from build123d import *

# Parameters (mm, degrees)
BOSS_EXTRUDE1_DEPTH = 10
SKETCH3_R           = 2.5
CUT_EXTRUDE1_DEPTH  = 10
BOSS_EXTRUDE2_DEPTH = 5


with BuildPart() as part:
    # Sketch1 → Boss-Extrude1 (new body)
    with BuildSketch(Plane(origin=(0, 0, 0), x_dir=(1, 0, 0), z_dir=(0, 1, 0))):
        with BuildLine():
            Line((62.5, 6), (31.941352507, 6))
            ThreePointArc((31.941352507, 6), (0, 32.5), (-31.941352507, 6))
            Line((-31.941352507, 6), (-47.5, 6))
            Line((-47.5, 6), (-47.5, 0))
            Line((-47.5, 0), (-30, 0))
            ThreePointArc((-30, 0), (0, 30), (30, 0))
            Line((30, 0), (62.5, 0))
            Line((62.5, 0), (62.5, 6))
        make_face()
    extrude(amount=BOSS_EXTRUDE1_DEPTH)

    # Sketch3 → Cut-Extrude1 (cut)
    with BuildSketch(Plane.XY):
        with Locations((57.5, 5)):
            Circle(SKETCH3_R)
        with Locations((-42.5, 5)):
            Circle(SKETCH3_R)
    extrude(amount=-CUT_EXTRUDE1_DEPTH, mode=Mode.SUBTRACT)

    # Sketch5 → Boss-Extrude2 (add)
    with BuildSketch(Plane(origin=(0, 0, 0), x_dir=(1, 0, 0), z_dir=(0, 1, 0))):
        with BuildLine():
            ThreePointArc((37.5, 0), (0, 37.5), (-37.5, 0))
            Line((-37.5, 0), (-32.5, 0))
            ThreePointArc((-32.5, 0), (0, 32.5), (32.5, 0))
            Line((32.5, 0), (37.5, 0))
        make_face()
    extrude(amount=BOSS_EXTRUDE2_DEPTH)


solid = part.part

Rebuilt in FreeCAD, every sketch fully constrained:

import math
import FreeCAD as App
import Part
import Sketcher

doc = App.newDocument("Part")
body = doc.addObject("PartDesign::Body", "Body")

# Sketch on XZ plane
sketch1 = body.newObject("Sketcher::SketchObject", "Sketch")
sketch1.AttachmentSupport = (doc.getObject("XZ_Plane"), [""])
sketch1.MapMode = "FlatFace"
sketch1.addGeometry(Part.LineSegment(App.Vector(62.5, -6, 0), App.Vector(31.941353, -6, 0)), False)
sketch1.addGeometry(Part.ArcOfCircle(Part.Circle(App.Vector(0, 0, 0), App.Vector(0, 0, 1), 32.5), math.radians(-169.361291), math.radians(-10.638709)), False)
sketch1.addGeometry(Part.LineSegment(App.Vector(-31.941353, -6, 0), App.Vector(-47.5, -6, 0)), False)
sketch1.addGeometry(Part.LineSegment(App.Vector(-47.5, -6, 0), App.Vector(-47.5, 0, 0)), False)
sketch1.addGeometry(Part.LineSegment(App.Vector(-47.5, 0, 0), App.Vector(-30, 0, 0)), False)
sketch1.addGeometry(Part.ArcOfCircle(Part.Circle(App.Vector(0, 0, 0), App.Vector(0, 0, 1), 30), math.radians(180), math.radians(360)), False)
sketch1.addGeometry(Part.LineSegment(App.Vector(30, 0, 0), App.Vector(62.5, 0, 0)), False)
sketch1.addGeometry(Part.LineSegment(App.Vector(62.5, 0, 0), App.Vector(62.5, -6, 0)), False)
sketch1.addConstraint(Sketcher.Constraint("Coincident", 0, 2, 1, 2))
sketch1.addConstraint(Sketcher.Constraint("Coincident", 1, 1, 2, 1))
sketch1.addConstraint(Sketcher.Constraint("Coincident", 2, 2, 3, 1))
sketch1.addConstraint(Sketcher.Constraint("Coincident", 3, 2, 4, 1))
sketch1.addConstraint(Sketcher.Constraint("Coincident", 4, 2, 5, 1))
sketch1.addConstraint(Sketcher.Constraint("Coincident", 5, 2, 6, 1))
sketch1.addConstraint(Sketcher.Constraint("Coincident", 6, 2, 7, 1))
sketch1.addConstraint(Sketcher.Constraint("Coincident", 7, 2, 0, 1))
sketch1.addConstraint(Sketcher.Constraint("Horizontal", 0))
sketch1.addConstraint(Sketcher.Constraint("Horizontal", 2))
sketch1.addConstraint(Sketcher.Constraint("Vertical", 3))
sketch1.addConstraint(Sketcher.Constraint("Horizontal", 4))
sketch1.addConstraint(Sketcher.Constraint("Horizontal", 6))
sketch1.addConstraint(Sketcher.Constraint("Vertical", 7))
sketch1.addConstraint(Sketcher.Constraint("Coincident", 1, 3, -1, 1))
sketch1.addConstraint(Sketcher.Constraint("Coincident", 5, 3, -1, 1))
sketch1.addConstraint(Sketcher.Constraint("PointOnObject", 3, 2, -1))
sketch1.addConstraint(Sketcher.Constraint("PointOnObject", 5, 2, -1))
sketch1.addConstraint(Sketcher.Constraint("Horizontal", 0, 2, 1, 1))
sketch1.addConstraint(Sketcher.Constraint("Radius", 5, 30.0))
sketch1.addConstraint(Sketcher.Constraint("Radius", 1, 32.5))
sketch1.addConstraint(Sketcher.Constraint("DistanceY", 3, 1, 3, 2, 6.0))
sketch1.addConstraint(Sketcher.Constraint("DistanceX", 4, 1, 4, 2, 17.5))
sketch1.addConstraint(Sketcher.Constraint("DistanceX", 6, 1, 6, 2, 32.5))
pad1 = body.newObject("PartDesign::Pad", "Pad")
pad1.Profile = sketch1
pad1.Length = 10
pad1.Reversed = True

# Sketch on XY plane
sketch2 = body.newObject("Sketcher::SketchObject", "Sketch001")
sketch2.AttachmentSupport = (doc.getObject("XY_Plane"), [""])
sketch2.MapMode = "FlatFace"
sketch2.addGeometry(Part.Circle(App.Vector(57.5, 5, 0), App.Vector(0, 0, 1), 2.5), False)
sketch2.addGeometry(Part.Circle(App.Vector(-42.5, 5, 0), App.Vector(0, 0, 1), 2.5), False)
sketch2.addConstraint(Sketcher.Constraint("Equal", 0, 1))
sketch2.addConstraint(Sketcher.Constraint("Horizontal", 0, 3, 1, 3))
sketch2.addConstraint(Sketcher.Constraint("Diameter", 0, 5.0))
sketch2.addConstraint(Sketcher.Constraint("DistanceY", -1, 1, 0, 3, 5.0))
sketch2.addConstraint(Sketcher.Constraint("DistanceX", 1, 3, 0, 3, 100.0))
sketch2.addConstraint(Sketcher.Constraint("DistanceX", -1, 1, 0, 3, 57.5))
pocket1 = body.newObject("PartDesign::Pocket", "Pocket")
pocket1.Profile = sketch2
pocket1.Length = 10

# Sketch on XZ plane
sketch3 = body.newObject("Sketcher::SketchObject", "Sketch002")
sketch3.AttachmentSupport = (doc.getObject("XZ_Plane"), [""])
sketch3.MapMode = "FlatFace"
sketch3.addGeometry(Part.ArcOfCircle(Part.Circle(App.Vector(0, 0, 0), App.Vector(0, 0, 1), 37.5), math.radians(180), math.radians(360)), False)
sketch3.addGeometry(Part.LineSegment(App.Vector(-37.5, 0, 0), App.Vector(-32.5, 0, 0)), False)
sketch3.addGeometry(Part.ArcOfCircle(Part.Circle(App.Vector(0, 0, 0), App.Vector(0, 0, 1), 32.5), math.radians(180), math.radians(360)), False)
sketch3.addGeometry(Part.LineSegment(App.Vector(32.5, 0, 0), App.Vector(37.5, 0, 0)), False)
sketch3.addConstraint(Sketcher.Constraint("Coincident", 0, 1, 1, 1))
sketch3.addConstraint(Sketcher.Constraint("Coincident", 1, 2, 2, 1))
sketch3.addConstraint(Sketcher.Constraint("Coincident", 2, 2, 3, 1))
sketch3.addConstraint(Sketcher.Constraint("Coincident", 3, 2, 0, 2))
sketch3.addConstraint(Sketcher.Constraint("Horizontal", 1))
sketch3.addConstraint(Sketcher.Constraint("Horizontal", 3))
sketch3.addConstraint(Sketcher.Constraint("Coincident", 0, 3, -1, 1))
sketch3.addConstraint(Sketcher.Constraint("Coincident", 2, 3, -1, 1))
sketch3.addConstraint(Sketcher.Constraint("PointOnObject", 0, 1, -1))
sketch3.addConstraint(Sketcher.Constraint("PointOnObject", 2, 2, -1))
sketch3.addConstraint(Sketcher.Constraint("Radius", 0, 37.5))
sketch3.addConstraint(Sketcher.Constraint("Radius", 2, 32.5))
pad2 = body.newObject("PartDesign::Pad", "Pad001")
pad2.Profile = sketch3
pad2.Length = 5
pad2.Reversed = True

doc.recompute()
